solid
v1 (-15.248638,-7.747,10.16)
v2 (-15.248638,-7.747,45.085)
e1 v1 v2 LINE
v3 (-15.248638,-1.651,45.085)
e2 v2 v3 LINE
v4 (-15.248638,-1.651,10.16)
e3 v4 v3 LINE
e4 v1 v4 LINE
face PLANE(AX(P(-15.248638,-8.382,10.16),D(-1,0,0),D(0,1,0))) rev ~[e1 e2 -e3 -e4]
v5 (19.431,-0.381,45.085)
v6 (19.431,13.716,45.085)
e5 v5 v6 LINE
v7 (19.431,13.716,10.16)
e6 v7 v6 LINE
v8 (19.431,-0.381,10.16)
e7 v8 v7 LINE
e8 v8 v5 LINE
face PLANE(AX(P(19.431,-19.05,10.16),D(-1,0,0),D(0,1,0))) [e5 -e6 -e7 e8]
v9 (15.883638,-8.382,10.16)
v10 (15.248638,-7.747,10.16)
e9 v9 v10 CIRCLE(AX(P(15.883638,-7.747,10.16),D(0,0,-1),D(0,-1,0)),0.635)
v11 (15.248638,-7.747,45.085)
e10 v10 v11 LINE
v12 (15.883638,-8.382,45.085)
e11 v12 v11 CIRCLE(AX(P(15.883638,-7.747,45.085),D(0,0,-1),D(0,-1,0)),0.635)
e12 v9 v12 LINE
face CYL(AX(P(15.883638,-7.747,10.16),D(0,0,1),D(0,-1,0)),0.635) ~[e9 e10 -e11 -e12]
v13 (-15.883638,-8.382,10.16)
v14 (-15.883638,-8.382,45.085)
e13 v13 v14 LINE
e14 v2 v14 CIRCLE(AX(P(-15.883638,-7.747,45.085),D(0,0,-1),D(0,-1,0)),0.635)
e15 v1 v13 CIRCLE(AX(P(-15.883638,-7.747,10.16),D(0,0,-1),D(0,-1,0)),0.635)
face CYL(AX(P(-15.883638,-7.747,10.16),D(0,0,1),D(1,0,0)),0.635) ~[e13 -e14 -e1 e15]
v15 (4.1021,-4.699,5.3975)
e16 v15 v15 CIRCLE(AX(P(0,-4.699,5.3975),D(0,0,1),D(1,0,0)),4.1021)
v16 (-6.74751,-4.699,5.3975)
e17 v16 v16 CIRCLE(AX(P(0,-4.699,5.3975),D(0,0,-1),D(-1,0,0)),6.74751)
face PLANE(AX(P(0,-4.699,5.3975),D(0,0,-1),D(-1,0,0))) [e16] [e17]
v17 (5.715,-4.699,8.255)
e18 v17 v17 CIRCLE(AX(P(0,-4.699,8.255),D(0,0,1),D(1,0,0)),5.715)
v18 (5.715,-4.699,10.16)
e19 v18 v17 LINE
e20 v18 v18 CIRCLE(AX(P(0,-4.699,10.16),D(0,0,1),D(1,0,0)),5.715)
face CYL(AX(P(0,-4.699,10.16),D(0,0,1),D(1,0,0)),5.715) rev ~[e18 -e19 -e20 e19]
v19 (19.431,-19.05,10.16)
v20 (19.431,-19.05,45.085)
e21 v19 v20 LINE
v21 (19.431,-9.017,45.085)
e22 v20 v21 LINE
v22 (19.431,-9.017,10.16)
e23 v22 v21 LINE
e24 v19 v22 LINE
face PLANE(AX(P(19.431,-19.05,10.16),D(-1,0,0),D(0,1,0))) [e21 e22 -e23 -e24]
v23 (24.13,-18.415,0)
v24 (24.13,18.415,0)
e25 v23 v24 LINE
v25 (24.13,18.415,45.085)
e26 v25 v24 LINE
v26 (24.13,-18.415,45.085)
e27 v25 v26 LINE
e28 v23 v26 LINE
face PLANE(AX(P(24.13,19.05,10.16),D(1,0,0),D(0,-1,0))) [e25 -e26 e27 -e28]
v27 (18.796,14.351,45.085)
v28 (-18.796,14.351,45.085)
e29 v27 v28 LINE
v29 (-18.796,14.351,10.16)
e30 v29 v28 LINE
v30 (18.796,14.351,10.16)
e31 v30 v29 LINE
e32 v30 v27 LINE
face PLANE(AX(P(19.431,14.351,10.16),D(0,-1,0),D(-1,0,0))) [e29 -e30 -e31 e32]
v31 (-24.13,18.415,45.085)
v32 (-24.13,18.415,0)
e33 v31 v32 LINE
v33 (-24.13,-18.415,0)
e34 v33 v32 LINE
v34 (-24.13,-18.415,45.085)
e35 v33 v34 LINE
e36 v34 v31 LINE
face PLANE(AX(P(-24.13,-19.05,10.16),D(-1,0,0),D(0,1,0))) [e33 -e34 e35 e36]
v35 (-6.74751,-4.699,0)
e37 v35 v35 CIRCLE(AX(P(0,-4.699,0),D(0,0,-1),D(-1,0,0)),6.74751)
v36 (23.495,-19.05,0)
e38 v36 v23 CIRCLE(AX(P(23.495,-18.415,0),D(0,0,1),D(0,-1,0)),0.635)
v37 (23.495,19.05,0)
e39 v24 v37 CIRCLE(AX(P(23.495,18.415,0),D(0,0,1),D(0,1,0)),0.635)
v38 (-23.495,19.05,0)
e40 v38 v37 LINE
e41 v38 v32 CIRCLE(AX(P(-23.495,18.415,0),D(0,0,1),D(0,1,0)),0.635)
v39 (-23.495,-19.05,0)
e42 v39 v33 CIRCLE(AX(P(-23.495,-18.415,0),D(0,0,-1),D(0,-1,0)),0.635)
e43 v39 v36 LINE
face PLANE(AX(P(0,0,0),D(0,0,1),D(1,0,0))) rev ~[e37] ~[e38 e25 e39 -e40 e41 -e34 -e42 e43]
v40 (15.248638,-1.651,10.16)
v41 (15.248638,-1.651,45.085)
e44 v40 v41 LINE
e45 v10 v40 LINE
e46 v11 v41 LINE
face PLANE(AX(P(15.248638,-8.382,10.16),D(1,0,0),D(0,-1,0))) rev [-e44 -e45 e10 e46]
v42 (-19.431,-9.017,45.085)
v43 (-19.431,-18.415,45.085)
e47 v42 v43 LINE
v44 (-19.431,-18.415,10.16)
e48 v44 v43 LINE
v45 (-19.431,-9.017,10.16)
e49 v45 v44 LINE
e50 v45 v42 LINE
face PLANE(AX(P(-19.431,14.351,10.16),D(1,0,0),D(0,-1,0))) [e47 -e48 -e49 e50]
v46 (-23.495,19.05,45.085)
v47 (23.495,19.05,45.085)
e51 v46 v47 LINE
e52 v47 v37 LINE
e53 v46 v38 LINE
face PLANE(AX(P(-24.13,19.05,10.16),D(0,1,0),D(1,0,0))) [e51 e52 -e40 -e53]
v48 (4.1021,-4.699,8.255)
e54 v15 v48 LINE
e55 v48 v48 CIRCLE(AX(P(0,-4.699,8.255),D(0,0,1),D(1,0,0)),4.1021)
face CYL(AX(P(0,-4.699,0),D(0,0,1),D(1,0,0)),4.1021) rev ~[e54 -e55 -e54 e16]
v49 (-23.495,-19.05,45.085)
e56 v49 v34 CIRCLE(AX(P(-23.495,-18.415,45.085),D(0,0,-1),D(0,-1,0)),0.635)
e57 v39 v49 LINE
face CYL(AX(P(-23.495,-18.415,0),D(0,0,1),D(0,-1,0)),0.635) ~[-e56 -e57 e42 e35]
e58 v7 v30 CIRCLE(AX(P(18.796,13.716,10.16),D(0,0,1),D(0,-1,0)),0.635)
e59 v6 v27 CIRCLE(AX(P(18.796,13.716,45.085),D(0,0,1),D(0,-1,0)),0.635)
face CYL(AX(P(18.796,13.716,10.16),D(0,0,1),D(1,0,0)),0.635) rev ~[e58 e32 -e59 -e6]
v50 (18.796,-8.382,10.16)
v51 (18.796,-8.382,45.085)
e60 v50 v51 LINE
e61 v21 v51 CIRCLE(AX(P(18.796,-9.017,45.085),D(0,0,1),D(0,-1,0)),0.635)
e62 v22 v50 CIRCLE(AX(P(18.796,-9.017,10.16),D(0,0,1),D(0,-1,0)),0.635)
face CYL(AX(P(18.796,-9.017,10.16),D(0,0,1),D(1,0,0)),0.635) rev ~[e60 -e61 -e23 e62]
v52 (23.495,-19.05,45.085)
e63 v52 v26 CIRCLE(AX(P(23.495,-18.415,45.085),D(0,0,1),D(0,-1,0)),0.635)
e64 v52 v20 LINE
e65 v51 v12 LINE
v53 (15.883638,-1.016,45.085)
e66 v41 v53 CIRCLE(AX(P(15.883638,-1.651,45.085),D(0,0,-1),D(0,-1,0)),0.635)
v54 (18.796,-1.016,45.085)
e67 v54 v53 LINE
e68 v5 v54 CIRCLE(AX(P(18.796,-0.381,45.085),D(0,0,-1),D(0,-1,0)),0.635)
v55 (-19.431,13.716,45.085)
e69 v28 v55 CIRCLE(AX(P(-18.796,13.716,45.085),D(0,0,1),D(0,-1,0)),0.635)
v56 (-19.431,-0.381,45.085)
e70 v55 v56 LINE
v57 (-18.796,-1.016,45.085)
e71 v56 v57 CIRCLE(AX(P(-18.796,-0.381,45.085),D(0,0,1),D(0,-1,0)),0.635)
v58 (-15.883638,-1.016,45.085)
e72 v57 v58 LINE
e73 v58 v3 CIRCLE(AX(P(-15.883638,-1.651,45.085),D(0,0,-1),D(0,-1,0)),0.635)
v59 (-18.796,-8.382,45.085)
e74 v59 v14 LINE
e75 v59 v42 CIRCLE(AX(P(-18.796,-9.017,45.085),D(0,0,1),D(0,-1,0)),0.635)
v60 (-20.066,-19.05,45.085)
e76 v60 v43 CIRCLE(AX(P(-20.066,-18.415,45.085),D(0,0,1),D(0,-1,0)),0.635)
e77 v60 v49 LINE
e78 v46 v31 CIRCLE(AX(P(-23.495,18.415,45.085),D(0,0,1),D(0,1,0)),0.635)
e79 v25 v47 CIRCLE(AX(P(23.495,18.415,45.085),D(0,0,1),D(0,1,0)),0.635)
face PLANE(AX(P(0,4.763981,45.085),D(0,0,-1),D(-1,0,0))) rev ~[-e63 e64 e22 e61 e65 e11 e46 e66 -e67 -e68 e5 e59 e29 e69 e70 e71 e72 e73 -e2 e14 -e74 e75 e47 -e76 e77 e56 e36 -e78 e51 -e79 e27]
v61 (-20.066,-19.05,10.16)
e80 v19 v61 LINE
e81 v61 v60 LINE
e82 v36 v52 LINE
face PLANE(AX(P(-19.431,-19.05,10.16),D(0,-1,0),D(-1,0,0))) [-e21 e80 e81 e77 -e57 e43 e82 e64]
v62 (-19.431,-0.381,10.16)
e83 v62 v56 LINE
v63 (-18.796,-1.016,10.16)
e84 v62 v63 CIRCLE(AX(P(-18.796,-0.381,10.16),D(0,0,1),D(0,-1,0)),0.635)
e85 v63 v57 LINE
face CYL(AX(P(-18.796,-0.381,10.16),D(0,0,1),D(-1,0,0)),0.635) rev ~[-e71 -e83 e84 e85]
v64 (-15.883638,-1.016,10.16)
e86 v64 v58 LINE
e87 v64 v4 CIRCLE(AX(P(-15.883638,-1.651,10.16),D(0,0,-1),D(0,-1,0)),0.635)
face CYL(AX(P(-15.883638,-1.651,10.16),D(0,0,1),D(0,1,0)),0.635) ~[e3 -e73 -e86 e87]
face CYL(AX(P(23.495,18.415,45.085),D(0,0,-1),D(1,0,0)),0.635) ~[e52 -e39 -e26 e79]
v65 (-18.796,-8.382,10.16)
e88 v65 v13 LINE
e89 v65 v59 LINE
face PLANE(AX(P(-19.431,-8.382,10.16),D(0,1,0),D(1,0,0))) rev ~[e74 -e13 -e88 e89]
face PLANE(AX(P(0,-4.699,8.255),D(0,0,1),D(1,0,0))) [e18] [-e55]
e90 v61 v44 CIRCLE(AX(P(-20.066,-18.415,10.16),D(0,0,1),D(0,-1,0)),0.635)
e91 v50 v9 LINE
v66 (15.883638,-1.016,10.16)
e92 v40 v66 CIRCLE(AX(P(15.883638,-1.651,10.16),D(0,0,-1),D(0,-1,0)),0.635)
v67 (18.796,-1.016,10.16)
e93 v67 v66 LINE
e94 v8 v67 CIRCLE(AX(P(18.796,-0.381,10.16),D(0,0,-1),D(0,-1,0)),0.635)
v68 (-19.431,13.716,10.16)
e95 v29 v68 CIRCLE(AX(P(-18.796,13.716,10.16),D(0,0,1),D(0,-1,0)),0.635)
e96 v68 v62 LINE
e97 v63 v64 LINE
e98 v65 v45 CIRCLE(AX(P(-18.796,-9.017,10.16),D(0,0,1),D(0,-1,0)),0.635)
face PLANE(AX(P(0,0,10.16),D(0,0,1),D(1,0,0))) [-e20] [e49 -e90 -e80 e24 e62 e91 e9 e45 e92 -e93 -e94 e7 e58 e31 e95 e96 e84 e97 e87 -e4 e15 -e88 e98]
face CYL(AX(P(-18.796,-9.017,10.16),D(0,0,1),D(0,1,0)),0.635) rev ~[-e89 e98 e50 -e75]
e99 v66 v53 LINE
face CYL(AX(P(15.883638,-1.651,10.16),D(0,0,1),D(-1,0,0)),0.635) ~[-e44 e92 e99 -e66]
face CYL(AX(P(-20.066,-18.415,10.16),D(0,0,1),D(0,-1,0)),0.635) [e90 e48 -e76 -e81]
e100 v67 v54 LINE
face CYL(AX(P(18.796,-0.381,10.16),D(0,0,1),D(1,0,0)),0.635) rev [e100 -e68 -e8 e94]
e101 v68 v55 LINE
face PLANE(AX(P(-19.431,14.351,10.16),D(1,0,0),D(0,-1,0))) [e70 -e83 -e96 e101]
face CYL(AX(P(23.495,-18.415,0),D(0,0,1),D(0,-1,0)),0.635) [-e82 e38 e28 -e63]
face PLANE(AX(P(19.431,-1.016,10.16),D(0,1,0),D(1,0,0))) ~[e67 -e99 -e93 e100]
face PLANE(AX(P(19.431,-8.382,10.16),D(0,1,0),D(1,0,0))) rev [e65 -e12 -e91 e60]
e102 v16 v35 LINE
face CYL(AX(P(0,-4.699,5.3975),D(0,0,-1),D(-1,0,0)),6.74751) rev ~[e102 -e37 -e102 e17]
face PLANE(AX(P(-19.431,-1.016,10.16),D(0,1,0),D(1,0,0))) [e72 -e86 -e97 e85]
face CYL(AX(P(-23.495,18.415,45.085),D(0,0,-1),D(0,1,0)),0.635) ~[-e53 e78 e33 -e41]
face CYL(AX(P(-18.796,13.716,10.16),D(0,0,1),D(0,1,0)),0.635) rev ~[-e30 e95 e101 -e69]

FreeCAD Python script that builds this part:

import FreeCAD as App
import Part
import Sketcher

V = App.Vector
Q = App.Units.Quantity


def edges_at(feature, points):
    """Names of the edges that pass closest to the given points."""
    edges = feature.Shape.Edges
    near = lambda p: min(range(len(edges)), key=lambda i: edges[i].distToShape(Part.Vertex(*p))[0])
    return sorted({f"Edge{near(p) + 1}" for p in points})


def add_polygon(sketch, points):
    """Adds a closed chain of lines whose ends are joined by coincident constraints."""
    first, n = sketch.GeometryCount, len(points)
    for a, b in zip(points, points[1:] + points[:1]):
        sketch.addGeometry(Part.LineSegment(App.Vector(*a, 0), App.Vector(*b, 0)), False)
    for i in range(n):
        sketch.addConstraint(Sketcher.Constraint("Coincident", first + i, 2, first + (i + 1) % n, 1))

doc = App.newDocument("Part")
params = doc.addObject("Spreadsheet::Sheet", "Params")
for row, (alias, value) in enumerate([
    ("sketch1_width", "1.9 in"),
    ("sketch1_height", "1.5 in"),
    ("pad1_length", "0.4 in"),
    ("sketch2_width", "1.9 in"),
    ("sketch2_height", "1.5 in"),
    ("sketch2_width2", "1.53 in"),
    ("sketch2_height2", "1.315 in"),
    ("pad2_length", "1.375 in"),
    ("sketch3_diameter", "0.323 in"),
    ("hole_diameter", "0.323 in"),
    ("hole_cbore_diameter", "0.5313 in"),
    ("hole_cbore_depth", "0.2125 in"),
    ("sketch4_diameter", "0.45 in"),
    ("pocket1_length", "0.075 in"),
    ("sketch5_height", "0.29 in"),
    ("pad3_length", "1.375 in"),
    ("fillet_radius", "0.025 in"),
    ("fillet2_radius", "0.025 in"),
    ("fillet3_radius", "0.025 in"),
], start=1):
    params.set(f"A{row}", alias)
    params.set(f"B{row}", "=" + value)
    params.setAlias(f"B{row}", alias)

body = doc.addObject("PartDesign::Body", "Body")

# Sketch on XY plane
sketch1 = doc.addObject("Sketcher::SketchObject", "Sketch")
body.addObject(sketch1)
sketch1.AttachmentSupport = (doc.XY_Plane, [""])
sketch1.MapMode = "FlatFace"
add_polygon(sketch1, [(-24, 19), (-24, -19), (24, -19), (24, 19)])  # lines 0-3
sketch1.addConstraint([
    Sketcher.Constraint("Vertical", 0),
    Sketcher.Constraint("Horizontal", 1),
    Sketcher.Constraint("Vertical", 2),
    Sketcher.Constraint("Horizontal", 3),
    Sketcher.Constraint("Symmetric", 0, 2, 2, 2, -1, 1),
    Sketcher.Constraint("DistanceX", 1, 1, 1, 2, Q("1.9 in")),
    Sketcher.Constraint("DistanceY", 0, 2, 0, 1, Q("1.5 in")),
])
sketch1.setExpression("Constraints[9]", "Params.sketch1_width")
sketch1.setExpression("Constraints[10]", "Params.sketch1_height")
pad1 = doc.addObject("PartDesign::Pad", "Pad")
body.addObject(pad1)
pad1.Profile = sketch1
pad1.setExpression("Length", "Params.pad1_length")

# Sketch on XY plane
sketch2 = doc.addObject("Sketcher::SketchObject", "Sketch001")
body.addObject(sketch2)
sketch2.AttachmentSupport = (doc.XY_Plane, [""])
sketch2.MapMode = "FlatFace"
sketch2.AttachmentOffset = App.Placement(V(0, 0, 0.4 * 25.4), App.Rotation())
add_polygon(sketch2, [(-24.1, 19.1), (-24.1, -19.1), (-19.4, -19.1), (-19.4, 14.4), (19.4, 14.4), (19.4, -19.1), (24.1, -19.1), (24.1, 19.1)])  # lines 0-7
sketch2.addConstraint([
    Sketcher.Constraint("Vertical", 0),
    Sketcher.Constraint("Horizontal", 1),
    Sketcher.Constraint("Vertical", 2),
    Sketcher.Constraint("Horizontal", 3),
    Sketcher.Constraint("Vertical", 4),
    Sketcher.Constraint("Horizontal", 5),
    Sketcher.Constraint("Vertical", 6),
    Sketcher.Constraint("Horizontal", 7),
    Sketcher.Constraint("Symmetric", 0, 2, 6, 2, -1, 1),
    Sketcher.Constraint("Symmetric", 1, 2, 4, 2, -2),
    Sketcher.Constraint("DistanceX", 7, 2, 7, 1, Q("1.9 in")),
    Sketcher.Constraint("DistanceY", 0, 2, 0, 1, Q("1.5 in")),
    Sketcher.Constraint("DistanceX", 3, 1, 3, 2, Q("1.53 in")),
    Sketcher.Constraint("DistanceY", 2, 1, 2, 2, Q("1.315 in")),
])
sketch2.setExpression("Constraints[18]", "Params.sketch2_width")
sketch2.setExpression("Constraints[19]", "Params.sketch2_height")
sketch2.setExpression("Constraints[20]", "Params.sketch2_width2")
sketch2.setExpression("Constraints[21]", "Params.sketch2_height2")
pad2 = doc.addObject("PartDesign::Pad", "Pad001")
body.addObject(pad2)
pad2.Profile = sketch2
pad2.setExpression("Length", "Params.pad2_length")

# Sketch on XY plane
sketch3 = doc.addObject("Sketcher::SketchObject", "Sketch002")
body.addObject(sketch3)
sketch3.AttachmentSupport = (doc.XY_Plane, [""])
sketch3.MapMode = "FlatFace"
sketch3.addGeometry(Part.Circle(V(0, -4.7, 0), V(0, 0, 1), 4.1), False)
sketch3.addConstraint([
    Sketcher.Constraint("PointOnObject", 0, 3, -2),
    Sketcher.Constraint("Diameter", 0, Q("0.323 in")),
    Sketcher.Constraint("DistanceY", 0, 3, -1, 1, Q("0.185 in")),
])
sketch3.setExpression("Constraints[1]", "Params.sketch3_diameter")
doc.recompute()
hole = doc.addObject("PartDesign::Hole", "Hole")
body.addObject(hole)
hole.Profile = sketch3
hole.ThreadType = "None"
hole.setExpression("Diameter", "Params.hole_diameter")
hole.DepthType = "ThroughAll"
hole.HoleCutType = "Counterbore"
hole.setExpression("HoleCutDiameter", "Params.hole_cbore_diameter")
hole.setExpression("HoleCutDepth", "Params.hole_cbore_depth")
hole.Reversed = True

# Sketch on XY plane
sketch4 = doc.addObject("Sketcher::SketchObject", "Sketch003")
body.addObject(sketch4)
sketch4.AttachmentSupport = (doc.XY_Plane, [""])
sketch4.MapMode = "FlatFace"
sketch4.AttachmentOffset = App.Placement(V(0, 0, 0.4 * 25.4), App.Rotation())
sketch4.addGeometry(Part.Circle(V(0, -5, 0), V(0, 0, 1), 6), False)
sketch4.addConstraint([
    Sketcher.Constraint("PointOnObject", 0, 3, -2),
    Sketcher.Constraint("Diameter", 0, Q("0.45 in")),
    Sketcher.Constraint("DistanceY", 0, 3, -1, 1, Q("0.185 in")),
])
sketch4.setExpression("Constraints[1]", "Params.sketch4_diameter")
pocket1 = doc.addObject("PartDesign::Pocket", "Pocket")
body.addObject(pocket1)
pocket1.Profile = sketch4
pocket1.setExpression("Length", "Params.pocket1_length")

# Sketch on XY plane
sketch5 = doc.addObject("Sketcher::SketchObject", "Sketch004")
body.addObject(sketch5)
sketch5.AttachmentSupport = (doc.XY_Plane, [""])
sketch5.MapMode = "FlatFace"
sketch5.AttachmentOffset = App.Placement(V(0, 0, 0.4 * 25.4), App.Rotation())
add_polygon(sketch5, [(-19.4, -1), (-19.4, -8.4), (-15.2, -8.4), (-15.2, -1)])  # lines 0-3
sketch5.addConstraint([
    Sketcher.Constraint("Vertical", 0),
    Sketcher.Constraint("Horizontal", 1),
    Sketcher.Constraint("Vertical", 2),
    Sketcher.Constraint("Horizontal", 3),
    Sketcher.Constraint("DistanceY", 0, 2, 0, 1, Q("0.29 in")),
    Sketcher.Constraint("DistanceY", 0, 2, -1, 1, Q("0.33 in")),
    Sketcher.Constraint("DistanceX", 0, 2, -1, 1, Q("0.765 in")),
    Sketcher.Constraint("DistanceX", 1, 1, 1, 2, Q("4.182362 mm")),
])
sketch5.setExpression("Constraints[8]", "Params.sketch5_height")
pad3 = doc.addObject("PartDesign::Pad", "Pad002")
body.addObject(pad3)
pad3.Profile = sketch5
pad3.setExpression("Length", "Params.pad3_length")
doc.recompute()

fillet = doc.addObject("PartDesign::Fillet", "Fillet")
body.addObject(fillet)
fillet.Base = (pad3, edges_at(pad3, [(-19.431, 14.351, 27.622), (19.431, 14.351, 27.622)]))
fillet.setExpression("Radius", "Params.fillet_radius")
doc.recompute()

fillet2 = doc.addObject("PartDesign::Fillet", "Fillet001")
body.addObject(fillet2)
fillet2.Base = (fillet, edges_at(fillet, [
    (-19.431, -19.05, 27.622),
    (24.13, -19.05, 22.543),
    (-24.13, -19.05, 22.543),
    (-24.13, 19.05, 22.543),
    (24.13, 19.05, 22.543),
]))
fillet2.setExpression("Radius", "Params.fillet2_radius")
doc.recompute()

mirrored = doc.addObject("PartDesign::Mirrored", "Mirrored")
body.addObject(mirrored)
mirrored.Originals = [pad3]
mirrored.MirrorPlane = (doc.YZ_Plane, [""])
body.Tip = mirrored
doc.recompute()

fillet3 = doc.addObject("PartDesign::Fillet", "Fillet002")
body.addObject(fillet3)
fillet3.Base = (mirrored, edges_at(mirrored, [
    (19.431, -1.016, 27.622),
    (19.431, -8.382, 27.622),
    (15.249, -8.382, 27.622),
    (15.249, -1.016, 27.622),
    (-15.249, -8.382, 27.622),
    (-15.249, -1.016, 27.622),
    (-19.431, -1.016, 27.622),
    (-19.431, -8.382, 27.622),
]))
fillet3.setExpression("Radius", "Params.fillet3_radius")

doc.recompute()
